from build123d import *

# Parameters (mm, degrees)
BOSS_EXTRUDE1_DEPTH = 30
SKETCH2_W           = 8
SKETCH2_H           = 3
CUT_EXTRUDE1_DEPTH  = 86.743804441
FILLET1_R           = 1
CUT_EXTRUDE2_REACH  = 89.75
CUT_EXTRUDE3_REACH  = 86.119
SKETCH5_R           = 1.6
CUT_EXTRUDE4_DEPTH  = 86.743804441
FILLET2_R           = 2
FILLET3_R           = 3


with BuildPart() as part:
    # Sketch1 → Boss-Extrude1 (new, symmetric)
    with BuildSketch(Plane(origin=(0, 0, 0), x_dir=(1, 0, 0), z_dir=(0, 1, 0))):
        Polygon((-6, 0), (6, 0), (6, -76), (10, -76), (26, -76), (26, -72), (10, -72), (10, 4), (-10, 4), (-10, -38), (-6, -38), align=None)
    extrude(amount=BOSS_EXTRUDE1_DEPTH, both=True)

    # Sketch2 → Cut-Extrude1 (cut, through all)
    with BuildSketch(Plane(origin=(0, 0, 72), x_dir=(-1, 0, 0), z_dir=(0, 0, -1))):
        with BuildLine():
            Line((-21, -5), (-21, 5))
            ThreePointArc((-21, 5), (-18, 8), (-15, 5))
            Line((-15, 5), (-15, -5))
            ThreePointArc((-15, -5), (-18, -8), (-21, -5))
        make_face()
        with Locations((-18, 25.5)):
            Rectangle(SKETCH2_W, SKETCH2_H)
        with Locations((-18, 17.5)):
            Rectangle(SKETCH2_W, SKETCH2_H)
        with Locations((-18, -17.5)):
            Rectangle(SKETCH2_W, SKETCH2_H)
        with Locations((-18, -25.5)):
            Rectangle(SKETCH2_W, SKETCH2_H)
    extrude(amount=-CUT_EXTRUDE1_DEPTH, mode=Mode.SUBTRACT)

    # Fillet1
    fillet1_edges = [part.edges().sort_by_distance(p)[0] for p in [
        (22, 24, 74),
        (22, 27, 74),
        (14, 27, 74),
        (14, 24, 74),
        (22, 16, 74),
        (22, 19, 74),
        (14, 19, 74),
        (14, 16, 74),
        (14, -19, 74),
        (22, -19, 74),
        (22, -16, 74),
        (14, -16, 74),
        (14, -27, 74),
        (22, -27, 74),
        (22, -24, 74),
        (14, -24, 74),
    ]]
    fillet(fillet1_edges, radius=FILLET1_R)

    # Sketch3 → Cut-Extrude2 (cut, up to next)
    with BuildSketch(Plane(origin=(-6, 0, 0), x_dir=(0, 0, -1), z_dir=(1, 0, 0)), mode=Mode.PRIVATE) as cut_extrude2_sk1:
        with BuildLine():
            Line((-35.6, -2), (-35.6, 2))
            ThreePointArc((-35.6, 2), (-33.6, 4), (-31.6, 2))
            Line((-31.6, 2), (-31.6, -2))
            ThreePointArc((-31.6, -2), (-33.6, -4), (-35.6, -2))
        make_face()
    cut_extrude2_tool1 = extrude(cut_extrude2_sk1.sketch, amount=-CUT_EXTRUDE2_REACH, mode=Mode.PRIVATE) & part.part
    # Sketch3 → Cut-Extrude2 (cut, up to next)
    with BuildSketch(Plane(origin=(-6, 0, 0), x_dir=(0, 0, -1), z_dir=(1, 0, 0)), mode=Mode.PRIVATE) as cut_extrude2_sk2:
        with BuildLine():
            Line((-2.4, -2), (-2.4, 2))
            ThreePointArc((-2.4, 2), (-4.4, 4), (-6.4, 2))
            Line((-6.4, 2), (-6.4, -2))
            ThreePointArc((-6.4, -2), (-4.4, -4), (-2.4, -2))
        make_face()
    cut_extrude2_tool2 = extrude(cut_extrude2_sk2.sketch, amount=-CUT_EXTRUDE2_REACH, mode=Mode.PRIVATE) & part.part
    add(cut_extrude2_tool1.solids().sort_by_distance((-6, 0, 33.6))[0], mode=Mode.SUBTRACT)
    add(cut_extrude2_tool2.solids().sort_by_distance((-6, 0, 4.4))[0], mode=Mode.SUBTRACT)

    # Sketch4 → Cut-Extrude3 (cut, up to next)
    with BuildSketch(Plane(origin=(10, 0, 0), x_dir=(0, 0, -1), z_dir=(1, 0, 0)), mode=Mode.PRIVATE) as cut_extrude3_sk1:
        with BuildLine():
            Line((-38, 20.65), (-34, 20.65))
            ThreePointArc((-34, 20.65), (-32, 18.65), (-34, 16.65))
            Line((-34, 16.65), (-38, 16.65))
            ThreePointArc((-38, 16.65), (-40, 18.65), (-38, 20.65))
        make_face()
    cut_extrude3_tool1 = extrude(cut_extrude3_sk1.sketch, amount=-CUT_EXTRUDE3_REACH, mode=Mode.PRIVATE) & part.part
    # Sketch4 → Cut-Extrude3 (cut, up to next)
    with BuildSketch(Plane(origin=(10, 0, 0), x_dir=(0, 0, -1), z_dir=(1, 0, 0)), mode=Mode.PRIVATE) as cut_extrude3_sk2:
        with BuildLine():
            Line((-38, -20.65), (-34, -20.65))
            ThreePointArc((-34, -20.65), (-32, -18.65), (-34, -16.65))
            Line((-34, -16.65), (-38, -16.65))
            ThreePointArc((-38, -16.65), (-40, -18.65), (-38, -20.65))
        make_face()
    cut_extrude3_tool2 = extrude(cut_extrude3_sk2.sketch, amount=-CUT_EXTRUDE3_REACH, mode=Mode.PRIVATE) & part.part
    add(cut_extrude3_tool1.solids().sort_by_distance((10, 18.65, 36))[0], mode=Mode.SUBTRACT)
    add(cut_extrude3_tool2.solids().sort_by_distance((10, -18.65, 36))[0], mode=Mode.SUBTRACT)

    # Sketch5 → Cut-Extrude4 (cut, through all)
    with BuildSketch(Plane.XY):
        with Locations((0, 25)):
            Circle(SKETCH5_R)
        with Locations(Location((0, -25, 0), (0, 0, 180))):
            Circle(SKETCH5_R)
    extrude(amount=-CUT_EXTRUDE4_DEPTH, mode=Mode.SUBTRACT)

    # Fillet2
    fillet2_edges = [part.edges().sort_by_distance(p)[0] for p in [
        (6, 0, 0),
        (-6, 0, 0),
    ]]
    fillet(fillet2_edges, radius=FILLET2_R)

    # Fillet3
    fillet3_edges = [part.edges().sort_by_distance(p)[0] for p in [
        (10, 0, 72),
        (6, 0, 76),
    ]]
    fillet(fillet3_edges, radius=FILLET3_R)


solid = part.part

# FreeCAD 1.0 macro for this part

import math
import FreeCAD as App
import Part
import Sketcher

V = App.Vector


def edges_at(feature, points):
    """Names of the edges that pass closest to the given points."""
    edges = feature.Shape.Edges
    near = lambda p: min(range(len(edges)), key=lambda i: edges[i].distToShape(Part.Vertex(*p))[0])
    return sorted({f"Edge{near(p) + 1}" for p in points})


def add_polygon(sketch, points):
    """Adds a closed chain of lines whose ends are joined by coincident constraints."""
    first, n = sketch.GeometryCount, len(points)
    for a, b in zip(points, points[1:] + points[:1]):
        sketch.addGeometry(Part.LineSegment(App.Vector(*a, 0), App.Vector(*b, 0)), False)
    for i in range(n):
        sketch.addConstraint(Sketcher.Constraint("Coincident", first + i, 2, first + (i + 1) % n, 1))

doc = App.newDocument("Part")
params = doc.addObject("Spreadsheet::Sheet", "Params")
for row, (alias, value) in enumerate([
    ("sketch1_width", "12 mm"),
    ("sketch1_width2", "20 mm"),
    ("sketch1_width3", "16 mm"),
    ("sketch1_height", "76 mm"),
    ("sketch1_height2", "42 mm"),
    ("pad1_length", "60 mm"),
    ("sketch2_radius", "3 mm"),
    ("sketch2_width", "8 mm"),
    ("sketch2_height", "10 mm"),
    ("sketch2_height2", "3 mm"),
    ("fillet_radius", "1 mm"),
    ("sketch3_radius", "2 mm"),
    ("sketch3_width", "4 mm"),
    ("sketch4_radius", "2 mm"),
    ("sketch4_width", "4 mm"),
    ("sketch5_radius", "2 mm"),
    ("sketch5_height", "4 mm"),
    ("sketch6_radius", "2 mm"),
    ("sketch6_height", "4 mm"),
    ("sketch7_diameter", "3.2 mm"),
    ("fillet2_radius", "2 mm"),
    ("fillet3_radius", "3 mm"),
], start=1):
    params.set(f"A{row}", alias)
    params.set(f"B{row}", "=" + value)
    params.setAlias(f"B{row}", alias)

body = doc.addObject("PartDesign::Body", "Body")

sketch1 = body.newObject("Sketcher::SketchObject", "Sketch")
sketch1.AttachmentSupport = (doc.getObject("XZ_Plane"), [""])
sketch1.MapMode = "FlatFace"
add_polygon(sketch1, [(-6, 0), (6, 0), (6, 76), (26, 76), (26, 72), (10, 72), (10, -4), (-10, -4), (-10, 38), (-6, 38)])
sketch1.addConstraint([
    Sketcher.Constraint("Horizontal", 0),
    Sketcher.Constraint("Vertical", 1),
    Sketcher.Constraint("Horizontal", 2),
    Sketcher.Constraint("Vertical", 3),
    Sketcher.Constraint("Horizontal", 4),
    Sketcher.Constraint("Vertical", 5),
    Sketcher.Constraint("Horizontal", 6),
    Sketcher.Constraint("Vertical", 7),
    Sketcher.Constraint("Horizontal", 8),
    Sketcher.Constraint("Vertical", 9),
    Sketcher.Constraint("Symmetric", 0, 2, 9, 2, -1, 1),
    Sketcher.Constraint("Equal", 2, 6),
    Sketcher.Constraint("Equal", 8, 3),
    Sketcher.Constraint("Equal", 1, 5),
    Sketcher.Constraint("DistanceX", 0, 1, 0, 2, 12.0),
    Sketcher.Constraint("DistanceX", 2, 1, 2, 2, 20.0),
    Sketcher.Constraint("DistanceX", 4, 2, 4, 1, 16.0),
    Sketcher.Constraint("DistanceY", 1, 1, 1, 2, 76.0),
    Sketcher.Constraint("DistanceY", 7, 1, 7, 2, 42.0),
])
sketch1.setExpression("Constraints[24]", "Params.sketch1_width")
sketch1.setExpression("Constraints[25]", "Params.sketch1_width2")
sketch1.setExpression("Constraints[26]", "Params.sketch1_width3")
sketch1.setExpression("Constraints[27]", "Params.sketch1_height")
sketch1.setExpression("Constraints[28]", "Params.sketch1_height2")
pad1 = body.newObject("PartDesign::Pad", "Pad")
pad1.Profile = sketch1
pad1.setExpression("Length", "Params.pad1_length")
pad1.Midplane = True

sketch2 = body.newObject("Sketcher::SketchObject", "Sketch001")
sketch2.AttachmentSupport = (doc.getObject("XY_Plane"), [""])
sketch2.MapMode = "FlatFace"
sketch2.AttachmentOffset = App.Placement(V(0, 0, 72), App.Rotation())
sketch2.addGeometry(Part.LineSegment(V(21, 5, 0), V(21, -5, 0)), False)
sketch2.addGeometry(Part.ArcOfCircle(Part.Circle(V(18, -5, 0), V(0, 0, 1), 3), math.radians(180), math.radians(360)), False)
sketch2.addGeometry(Part.LineSegment(V(15, -5, 0), V(15, 5, 0)), False)
sketch2.addGeometry(Part.ArcOfCircle(Part.Circle(V(18, 5, 0), V(0, 0, 1), 3), math.radians(0), math.radians(180)), False)
add_polygon(sketch2, [(22, 27), (22, 24), (14, 24), (14, 27)])
add_polygon(sketch2, [(22, 19), (22, 16), (14, 16), (14, 19)])
add_polygon(sketch2, [(22, -16), (22, -19), (14, -19), (14, -16)])
add_polygon(sketch2, [(22, -24), (22, -27), (14, -27), (14, -24)])
sketch2.addConstraint([
    Sketcher.Constraint("Tangent", 0, 2, 1, 2),
    Sketcher.Constraint("Tangent", 1, 1, 2, 1),
    Sketcher.Constraint("Tangent", 2, 2, 3, 2),
    Sketcher.Constraint("Tangent", 3, 1, 0, 1),
    Sketcher.Constraint("Vertical", 0),
    Sketcher.Constraint("Vertical", 2),
    Sketcher.Constraint("Vertical", 4),
    Sketcher.Constraint("Horizontal", 5),
    Sketcher.Constraint("Vertical", 6),
    Sketcher.Constraint("Horizontal", 7),
    Sketcher.Constraint("Vertical", 8),
    Sketcher.Constraint("Horizontal", 9),
    Sketcher.Constraint("Vertical", 10),
    Sketcher.Constraint("Horizontal", 11),
    Sketcher.Constraint("Vertical", 12),
    Sketcher.Constraint("Horizontal", 13),
    Sketcher.Constraint("Vertical", 14),
    Sketcher.Constraint("Horizontal", 15),
    Sketcher.Constraint("Vertical", 16),
    Sketcher.Constraint("Horizontal", 17),
    Sketcher.Constraint("Vertical", 18),
    Sketcher.Constraint("Horizontal", 19),
    Sketcher.Constraint("Symmetric", 11, 2, 12, 2, -1),
    Sketcher.Constraint("Symmetric", 9, 2, 14, 2, -1),
    Sketcher.Constraint("Symmetric", 7, 2, 16, 2, -1),
    Sketcher.Constraint("Symmetric", 5, 2, 18, 2, -1),
    Sketcher.Constraint("Vertical", 7, 2, 8, 2),
    Sketcher.Constraint("Vertical", 6, 2, 9, 2),
    Sketcher.Constraint("Equal", 6, 8),
    Sketcher.Constraint("Radius", 1, 3.0),
    Sketcher.Constraint("DistanceX", 5, 2, 5, 1, 8.0),
    Sketcher.Constraint("DistanceY", 0, 2, 0, 1, 10.0),
    Sketcher.Constraint("DistanceY", 4, 2, 4, 1, 3.0),
    Sketcher.Constraint("DistanceX", -1, 1, 1, 3, 18.0),
    Sketcher.Constraint("DistanceY", 1, 3, -1, 1, 5.0),
    Sketcher.Constraint("DistanceX", -1, 1, 4, 2, 22.0),
    Sketcher.Constraint("DistanceY", -1, 1, 4, 2, 24.0),
    Sketcher.Constraint("DistanceY", -1, 1, 8, 2, 16.0),
])
sketch2.setExpression("Constraints[45]", "Params.sketch2_radius")
sketch2.setExpression("Constraints[46]", "Params.sketch2_width")
sketch2.setExpression("Constraints[47]", "Params.sketch2_height")
sketch2.setExpression("Constraints[48]", "Params.sketch2_height2")
pocket1 = body.newObject("PartDesign::Pocket", "Pocket")
pocket1.Profile = sketch2
pocket1.Type = "ThroughAll"
pocket1.Reversed = True
doc.recompute()

fillet = body.newObject("PartDesign::Fillet", "Fillet")
fillet.Base = (pocket1, edges_at(pocket1, [
    (22, 24, 74),
    (22, 27, 74),
    (14, 27, 74),
    (14, 24, 74),
    (22, 16, 74),
    (22, 19, 74),
    (14, 19, 74),
    (14, 16, 74),
    (14, -19, 74),
    (22, -19, 74),
    (22, -16, 74),
    (14, -16, 74),
    (14, -27, 74),
    (22, -27, 74),
    (22, -24, 74),
    (14, -24, 74),
]))
fillet.setExpression("Radius", "Params.fillet_radius")

sketch3 = body.newObject("Sketcher::SketchObject", "Sketch002")
sketch3.AttachmentSupport = (doc.getObject("YZ_Plane"), [""])
sketch3.MapMode = "FlatFace"
sketch3.AttachmentOffset = App.Placement(V(0, 0, -6), App.Rotation())
sketch3.addGeometry([
    Part.LineSegment(V(2, 35.6, 0), V(-2, 35.6, 0)),
    Part.ArcOfCircle(Part.Circle(V(-2, 33.6, 0), V(0, 0, 1), 2), math.radians(90), math.radians(270)),
    Part.LineSegment(V(-2, 31.6, 0), V(2, 31.6, 0)),
    Part.ArcOfCircle(Part.Circle(V(2, 33.6, 0), V(0, 0, 1), 2), math.radians(-90), math.radians(90)),
], False)
sketch3.addConstraint([
    Sketcher.Constraint("Tangent", 0, 2, 1, 1),
    Sketcher.Constraint("Tangent", 1, 2, 2, 1),
    Sketcher.Constraint("Tangent", 2, 2, 3, 1),
    Sketcher.Constraint("Tangent", 3, 2, 0, 1),
    Sketcher.Constraint("Horizontal", 0),
    Sketcher.Constraint("Horizontal", 2),
    Sketcher.Constraint("Radius", 1, 2.0),
    Sketcher.Constraint("DistanceX", 0, 2, 0, 1, 4.0),
    Sketcher.Constraint("DistanceX", 1, 3, -1, 1, 2.0),
    Sketcher.Constraint("DistanceY", -1, 1, 1, 3, 33.6),
])
sketch3.setExpression("Constraints[6]", "Params.sketch3_radius")
sketch3.setExpression("Constraints[7]", "Params.sketch3_width")
pocket2 = body.newObject("PartDesign::Pocket", "Pocket001")
pocket2.Profile = sketch3
pocket2.Type = "UpToFirst"

sketch4 = body.newObject("Sketcher::SketchObject", "Sketch003")
sketch4.AttachmentSupport = (doc.getObject("YZ_Plane"), [""])
sketch4.MapMode = "FlatFace"
sketch4.AttachmentOffset = App.Placement(V(0, 0, -6), App.Rotation())
sketch4.addGeometry([
    Part.LineSegment(V(-2, 2.4, 0), V(2, 2.4, 0)),
    Part.ArcOfCircle(Part.Circle(V(2, 4.4, 0), V(0, 0, 1), 2), math.radians(-90), math.radians(90)),
    Part.LineSegment(V(2, 6.4, 0), V(-2, 6.4, 0)),
    Part.ArcOfCircle(Part.Circle(V(-2, 4.4, 0), V(0, 0, 1), 2), math.radians(90), math.radians(270)),
], False)
sketch4.addConstraint([
    Sketcher.Constraint("Tangent", 0, 2, 1, 1),
    Sketcher.Constraint("Tangent", 1, 2, 2, 1),
    Sketcher.Constraint("Tangent", 2, 2, 3, 1),
    Sketcher.Constraint("Tangent", 3, 2, 0, 1),
    Sketcher.Constraint("Horizontal", 0),
    Sketcher.Constraint("Horizontal", 2),
    Sketcher.Constraint("Radius", 1, 2.0),
    Sketcher.Constraint("DistanceX", 0, 1, 0, 2, 4.0),
    Sketcher.Constraint("DistanceX", -1, 1, 1, 3, 2.0),
    Sketcher.Constraint("DistanceY", -1, 1, 1, 3, 4.4),
])
sketch4.setExpression("Constraints[6]", "Params.sketch4_radius")
sketch4.setExpression("Constraints[7]", "Params.sketch4_width")
pocket3 = body.newObject("PartDesign::Pocket", "Pocket002")
pocket3.Profile = sketch4
pocket3.Type = "UpToFirst"

sketch5 = body.newObject("Sketcher::SketchObject", "Sketch004")
sketch5.AttachmentSupport = (doc.getObject("YZ_Plane"), [""])
sketch5.MapMode = "FlatFace"
sketch5.AttachmentOffset = App.Placement(V(0, 0, 10), App.Rotation())
sketch5.addGeometry([
    Part.LineSegment(V(20.65, 34, 0), V(20.65, 38, 0)),
    Part.ArcOfCircle(Part.Circle(V(18.65, 38, 0), V(0, 0, 1), 2), math.radians(0), math.radians(180)),
    Part.LineSegment(V(16.65, 38, 0), V(16.65, 34, 0)),
    Part.ArcOfCircle(Part.Circle(V(18.65, 34, 0), V(0, 0, 1), 2), math.radians(180), math.radians(360)),
], False)
sketch5.addConstraint([
    Sketcher.Constraint("Tangent", 0, 2, 1, 1),
    Sketcher.Constraint("Tangent", 1, 2, 2, 1),
    Sketcher.Constraint("Tangent", 2, 2, 3, 1),
    Sketcher.Constraint("Tangent", 3, 2, 0, 1),
    Sketcher.Constraint("Vertical", 0),
    Sketcher.Constraint("Vertical", 2),
    Sketcher.Constraint("Radius", 1, 2.0),
    Sketcher.Constraint("DistanceY", 0, 1, 0, 2, 4.0),
    Sketcher.Constraint("DistanceY", -1, 1, 1, 3, 38.0),
    Sketcher.Constraint("DistanceX", -1, 1, 1, 3, 18.65),
])
sketch5.setExpression("Constraints[6]", "Params.sketch5_radius")
sketch5.setExpression("Constraints[7]", "Params.sketch5_height")
pocket4 = body.newObject("PartDesign::Pocket", "Pocket003")
pocket4.Profile = sketch5
pocket4.Type = "UpToFirst"

sketch6 = body.newObject("Sketcher::SketchObject", "Sketch005")
sketch6.AttachmentSupport = (doc.getObject("YZ_Plane"), [""])
sketch6.MapMode = "FlatFace"
sketch6.AttachmentOffset = App.Placement(V(0, 0, 10), App.Rotation())
sketch6.addGeometry([
    Part.LineSegment(V(-20.65, 38, 0), V(-20.65, 34, 0)),
    Part.ArcOfCircle(Part.Circle(V(-18.65, 34, 0), V(0, 0, 1), 2), math.radians(180), math.radians(360)),
    Part.LineSegment(V(-16.65, 34, 0), V(-16.65, 38, 0)),
    Part.ArcOfCircle(Part.Circle(V(-18.65, 38, 0), V(0, 0, 1), 2), math.radians(0), math.radians(180)),
], False)
sketch6.addConstraint([
    Sketcher.Constraint("Tangent", 0, 2, 1, 1),
    Sketcher.Constraint("Tangent", 1, 2, 2, 1),
    Sketcher.Constraint("Tangent", 2, 2, 3, 1),
    Sketcher.Constraint("Tangent", 3, 2, 0, 1),
    Sketcher.Constraint("Vertical", 0),
    Sketcher.Constraint("Vertical", 2),
    Sketcher.Constraint("Radius", 1, 2.0),
    Sketcher.Constraint("DistanceY", 0, 2, 0, 1, 4.0),
    Sketcher.Constraint("DistanceY", -1, 1, 1, 3, 34.0),
    Sketcher.Constraint("DistanceX", 1, 3, -1, 1, 18.65),
])
sketch6.setExpression("Constraints[6]", "Params.sketch6_radius")
sketch6.setExpression("Constraints[7]", "Params.sketch6_height")
pocket5 = body.newObject("PartDesign::Pocket", "Pocket004")
pocket5.Profile = sketch6
pocket5.Type = "UpToFirst"

sketch7 = body.newObject("Sketcher::SketchObject", "Sketch006")
sketch7.AttachmentSupport = (doc.getObject("XY_Plane"), [""])
sketch7.MapMode = "FlatFace"
sketch7.addGeometry([
    Part.Circle(V(0, 25, 0), V(0, 0, 1), 1.6),
    Part.Circle(V(0, -25, 0), V(0, 0, 1), 1.6),
], False)
sketch7.addConstraint([
    Sketcher.Constraint("Equal", 0, 1),
    Sketcher.Constraint("Symmetric", 0, 3, 1, 3, -1, 1),
    Sketcher.Constraint("PointOnObject", 0, 3, -2),
    Sketcher.Constraint("Diameter", 0, 3.2),
    Sketcher.Constraint("DistanceY", -1, 1, 0, 3, 25.0),
])
sketch7.setExpression("Constraints[3]", "Params.sketch7_diameter")
pocket6 = body.newObject("PartDesign::Pocket", "Pocket005")
pocket6.Profile = sketch7
pocket6.Type = "ThroughAll"
doc.recompute()

fillet2 = body.newObject("PartDesign::Fillet", "Fillet001")
fillet2.Base = (pocket6, edges_at(pocket6, [(6, 0, 0), (-6, 0, 0)]))
fillet2.setExpression("Radius", "Params.fillet2_radius")
doc.recompute()

fillet3 = body.newObject("PartDesign::Fillet", "Fillet002")
fillet3.Base = (fillet2, edges_at(fillet2, [(10, 0, 72), (6, 0, 76)]))
fillet3.setExpression("Radius", "Params.fillet3_radius")

doc.recompute()
